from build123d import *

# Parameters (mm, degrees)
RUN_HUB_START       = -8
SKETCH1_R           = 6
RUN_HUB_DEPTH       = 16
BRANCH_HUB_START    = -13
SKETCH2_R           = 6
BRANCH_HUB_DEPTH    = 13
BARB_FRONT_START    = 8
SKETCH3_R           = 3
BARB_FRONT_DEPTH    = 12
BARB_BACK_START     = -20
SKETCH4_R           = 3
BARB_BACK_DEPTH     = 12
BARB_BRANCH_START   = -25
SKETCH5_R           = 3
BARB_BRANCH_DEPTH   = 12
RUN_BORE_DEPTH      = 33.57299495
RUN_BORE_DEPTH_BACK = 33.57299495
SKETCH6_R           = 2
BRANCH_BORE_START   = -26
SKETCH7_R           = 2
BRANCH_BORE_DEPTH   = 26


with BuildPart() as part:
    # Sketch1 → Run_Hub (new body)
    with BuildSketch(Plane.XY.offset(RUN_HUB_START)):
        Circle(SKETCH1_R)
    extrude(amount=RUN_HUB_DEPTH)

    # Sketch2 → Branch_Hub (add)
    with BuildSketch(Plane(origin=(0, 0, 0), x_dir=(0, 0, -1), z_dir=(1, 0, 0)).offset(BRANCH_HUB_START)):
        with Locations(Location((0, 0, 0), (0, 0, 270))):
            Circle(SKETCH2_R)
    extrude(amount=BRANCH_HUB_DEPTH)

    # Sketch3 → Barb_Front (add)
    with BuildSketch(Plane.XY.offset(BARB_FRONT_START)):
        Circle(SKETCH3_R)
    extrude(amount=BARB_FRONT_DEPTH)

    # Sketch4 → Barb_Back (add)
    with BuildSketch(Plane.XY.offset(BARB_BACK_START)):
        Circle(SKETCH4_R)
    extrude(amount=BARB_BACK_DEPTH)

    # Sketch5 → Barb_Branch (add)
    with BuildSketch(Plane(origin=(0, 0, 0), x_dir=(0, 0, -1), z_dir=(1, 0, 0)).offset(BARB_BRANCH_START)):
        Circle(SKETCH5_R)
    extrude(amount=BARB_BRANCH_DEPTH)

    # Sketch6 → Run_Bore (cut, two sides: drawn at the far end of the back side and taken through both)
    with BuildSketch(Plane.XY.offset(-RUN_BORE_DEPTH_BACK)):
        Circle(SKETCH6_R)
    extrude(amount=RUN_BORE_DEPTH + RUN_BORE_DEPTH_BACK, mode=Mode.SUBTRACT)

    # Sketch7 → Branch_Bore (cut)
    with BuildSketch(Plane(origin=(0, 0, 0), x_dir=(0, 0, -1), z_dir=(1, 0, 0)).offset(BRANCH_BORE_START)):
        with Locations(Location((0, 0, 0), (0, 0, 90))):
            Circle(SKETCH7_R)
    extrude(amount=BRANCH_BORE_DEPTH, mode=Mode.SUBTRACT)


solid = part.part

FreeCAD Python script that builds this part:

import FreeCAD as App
import Part
import Sketcher

doc = App.newDocument("Part")
body = doc.addObject("PartDesign::Body", "Body")

sketch1 = body.newObject("Sketcher::SketchObject", "Sketch")
sketch1.AttachmentSupport = (doc.getObject("XY_Plane"), [""])
sketch1.MapMode = "FlatFace"
sketch1.AttachmentOffset = App.Placement(App.Vector(0, 0, -8), App.Rotation())
sketch1.addGeometry(Part.Circle(App.Vector(0, 0, 0), App.Vector(0, 0, 1), 6), False)
sketch1.addConstraint(Sketcher.Constraint("Coincident", 0, 3, -1, 1))
sketch1.addConstraint(Sketcher.Constraint("Diameter", 0, 12.0))
pad1 = body.newObject("PartDesign::Pad", "Pad")
pad1.Profile = sketch1
pad1.Length = 16

sketch2 = body.newObject("Sketcher::SketchObject", "Sketch001")
sketch2.AttachmentSupport = (doc.getObject("YZ_Plane"), [""])
sketch2.MapMode = "FlatFace"
sketch2.AttachmentOffset = App.Placement(App.Vector(0, 0, -13), App.Rotation())
sketch2.addGeometry(Part.Circle(App.Vector(0, 0, 0), App.Vector(0, 0, 1), 6), False)
sketch2.addConstraint(Sketcher.Constraint("Coincident", 0, 3, -1, 1))
sketch2.addConstraint(Sketcher.Constraint("Diameter", 0, 12.0))
pad2 = body.newObject("PartDesign::Pad", "Pad001")
pad2.Profile = sketch2
pad2.Length = 13

sketch3 = body.newObject("Sketcher::SketchObject", "Sketch002")
sketch3.AttachmentSupport = (doc.getObject("XY_Plane"), [""])
sketch3.MapMode = "FlatFace"
sketch3.AttachmentOffset = App.Placement(App.Vector(0, 0, 8), App.Rotation())
sketch3.addGeometry(Part.Circle(App.Vector(0, 0, 0), App.Vector(0, 0, 1), 3), False)
sketch3.addConstraint(Sketcher.Constraint("Coincident", 0, 3, -1, 1))
sketch3.addConstraint(Sketcher.Constraint("Diameter", 0, 6.0))
pad3 = body.newObject("PartDesign::Pad", "Pad002")
pad3.Profile = sketch3
pad3.Length = 12

sketch4 = body.newObject("Sketcher::SketchObject", "Sketch003")
sketch4.AttachmentSupport = (doc.getObject("XY_Plane"), [""])
sketch4.MapMode = "FlatFace"
sketch4.AttachmentOffset = App.Placement(App.Vector(0, 0, -20), App.Rotation())
sketch4.addGeometry(Part.Circle(App.Vector(0, 0, 0), App.Vector(0, 0, 1), 3), False)
sketch4.addConstraint(Sketcher.Constraint("Coincident", 0, 3, -1, 1))
sketch4.addConstraint(Sketcher.Constraint("Diameter", 0, 6.0))
pad4 = body.newObject("PartDesign::Pad", "Pad003")
pad4.Profile = sketch4
pad4.Length = 12

sketch5 = body.newObject("Sketcher::SketchObject", "Sketch004")
sketch5.AttachmentSupport = (doc.getObject("YZ_Plane"), [""])
sketch5.MapMode = "FlatFace"
sketch5.AttachmentOffset = App.Placement(App.Vector(0, 0, -25), App.Rotation())
sketch5.addGeometry(Part.Circle(App.Vector(0, 0, 0), App.Vector(0, 0, 1), 3), False)
sketch5.addConstraint(Sketcher.Constraint("Coincident", 0, 3, -1, 1))
sketch5.addConstraint(Sketcher.Constraint("Diameter", 0, 6.0))
pad5 = body.newObject("PartDesign::Pad", "Pad004")
pad5.Profile = sketch5
pad5.Length = 12

sketch6 = body.newObject("Sketcher::SketchObject", "Sketch005")
sketch6.AttachmentSupport = (doc.getObject("XY_Plane"), [""])
sketch6.MapMode = "FlatFace"
sketch6.addGeometry(Part.Circle(App.Vector(0, 0, 0), App.Vector(0, 0, 1), 2), False)
sketch6.addConstraint(Sketcher.Constraint("Coincident", 0, 3, -1, 1))
sketch6.addConstraint(Sketcher.Constraint("Diameter", 0, 4.0))
pocket1 = body.newObject("PartDesign::Pocket", "Pocket")
pocket1.Profile = sketch6
pocket1.Type = "ThroughAll"
pocket1.Midplane = True

sketch7 = body.newObject("Sketcher::SketchObject", "Sketch006")
sketch7.AttachmentSupport = (doc.getObject("YZ_Plane"), [""])
sketch7.MapMode = "FlatFace"
sketch7.AttachmentOffset = App.Placement(App.Vector(0, 0, -26), App.Rotation())
sketch7.addGeometry(Part.Circle(App.Vector(0, 0, 0), App.Vector(0, 0, 1), 2), False)
sketch7.addConstraint(Sketcher.Constraint("Coincident", 0, 3, -1, 1))
sketch7.addConstraint(Sketcher.Constraint("Diameter", 0, 4.0))
pocket2 = body.newObject("PartDesign::Pocket", "Pocket001")
pocket2.Profile = sketch7
pocket2.Length = 26
pocket2.Reversed = True

doc.recompute()
